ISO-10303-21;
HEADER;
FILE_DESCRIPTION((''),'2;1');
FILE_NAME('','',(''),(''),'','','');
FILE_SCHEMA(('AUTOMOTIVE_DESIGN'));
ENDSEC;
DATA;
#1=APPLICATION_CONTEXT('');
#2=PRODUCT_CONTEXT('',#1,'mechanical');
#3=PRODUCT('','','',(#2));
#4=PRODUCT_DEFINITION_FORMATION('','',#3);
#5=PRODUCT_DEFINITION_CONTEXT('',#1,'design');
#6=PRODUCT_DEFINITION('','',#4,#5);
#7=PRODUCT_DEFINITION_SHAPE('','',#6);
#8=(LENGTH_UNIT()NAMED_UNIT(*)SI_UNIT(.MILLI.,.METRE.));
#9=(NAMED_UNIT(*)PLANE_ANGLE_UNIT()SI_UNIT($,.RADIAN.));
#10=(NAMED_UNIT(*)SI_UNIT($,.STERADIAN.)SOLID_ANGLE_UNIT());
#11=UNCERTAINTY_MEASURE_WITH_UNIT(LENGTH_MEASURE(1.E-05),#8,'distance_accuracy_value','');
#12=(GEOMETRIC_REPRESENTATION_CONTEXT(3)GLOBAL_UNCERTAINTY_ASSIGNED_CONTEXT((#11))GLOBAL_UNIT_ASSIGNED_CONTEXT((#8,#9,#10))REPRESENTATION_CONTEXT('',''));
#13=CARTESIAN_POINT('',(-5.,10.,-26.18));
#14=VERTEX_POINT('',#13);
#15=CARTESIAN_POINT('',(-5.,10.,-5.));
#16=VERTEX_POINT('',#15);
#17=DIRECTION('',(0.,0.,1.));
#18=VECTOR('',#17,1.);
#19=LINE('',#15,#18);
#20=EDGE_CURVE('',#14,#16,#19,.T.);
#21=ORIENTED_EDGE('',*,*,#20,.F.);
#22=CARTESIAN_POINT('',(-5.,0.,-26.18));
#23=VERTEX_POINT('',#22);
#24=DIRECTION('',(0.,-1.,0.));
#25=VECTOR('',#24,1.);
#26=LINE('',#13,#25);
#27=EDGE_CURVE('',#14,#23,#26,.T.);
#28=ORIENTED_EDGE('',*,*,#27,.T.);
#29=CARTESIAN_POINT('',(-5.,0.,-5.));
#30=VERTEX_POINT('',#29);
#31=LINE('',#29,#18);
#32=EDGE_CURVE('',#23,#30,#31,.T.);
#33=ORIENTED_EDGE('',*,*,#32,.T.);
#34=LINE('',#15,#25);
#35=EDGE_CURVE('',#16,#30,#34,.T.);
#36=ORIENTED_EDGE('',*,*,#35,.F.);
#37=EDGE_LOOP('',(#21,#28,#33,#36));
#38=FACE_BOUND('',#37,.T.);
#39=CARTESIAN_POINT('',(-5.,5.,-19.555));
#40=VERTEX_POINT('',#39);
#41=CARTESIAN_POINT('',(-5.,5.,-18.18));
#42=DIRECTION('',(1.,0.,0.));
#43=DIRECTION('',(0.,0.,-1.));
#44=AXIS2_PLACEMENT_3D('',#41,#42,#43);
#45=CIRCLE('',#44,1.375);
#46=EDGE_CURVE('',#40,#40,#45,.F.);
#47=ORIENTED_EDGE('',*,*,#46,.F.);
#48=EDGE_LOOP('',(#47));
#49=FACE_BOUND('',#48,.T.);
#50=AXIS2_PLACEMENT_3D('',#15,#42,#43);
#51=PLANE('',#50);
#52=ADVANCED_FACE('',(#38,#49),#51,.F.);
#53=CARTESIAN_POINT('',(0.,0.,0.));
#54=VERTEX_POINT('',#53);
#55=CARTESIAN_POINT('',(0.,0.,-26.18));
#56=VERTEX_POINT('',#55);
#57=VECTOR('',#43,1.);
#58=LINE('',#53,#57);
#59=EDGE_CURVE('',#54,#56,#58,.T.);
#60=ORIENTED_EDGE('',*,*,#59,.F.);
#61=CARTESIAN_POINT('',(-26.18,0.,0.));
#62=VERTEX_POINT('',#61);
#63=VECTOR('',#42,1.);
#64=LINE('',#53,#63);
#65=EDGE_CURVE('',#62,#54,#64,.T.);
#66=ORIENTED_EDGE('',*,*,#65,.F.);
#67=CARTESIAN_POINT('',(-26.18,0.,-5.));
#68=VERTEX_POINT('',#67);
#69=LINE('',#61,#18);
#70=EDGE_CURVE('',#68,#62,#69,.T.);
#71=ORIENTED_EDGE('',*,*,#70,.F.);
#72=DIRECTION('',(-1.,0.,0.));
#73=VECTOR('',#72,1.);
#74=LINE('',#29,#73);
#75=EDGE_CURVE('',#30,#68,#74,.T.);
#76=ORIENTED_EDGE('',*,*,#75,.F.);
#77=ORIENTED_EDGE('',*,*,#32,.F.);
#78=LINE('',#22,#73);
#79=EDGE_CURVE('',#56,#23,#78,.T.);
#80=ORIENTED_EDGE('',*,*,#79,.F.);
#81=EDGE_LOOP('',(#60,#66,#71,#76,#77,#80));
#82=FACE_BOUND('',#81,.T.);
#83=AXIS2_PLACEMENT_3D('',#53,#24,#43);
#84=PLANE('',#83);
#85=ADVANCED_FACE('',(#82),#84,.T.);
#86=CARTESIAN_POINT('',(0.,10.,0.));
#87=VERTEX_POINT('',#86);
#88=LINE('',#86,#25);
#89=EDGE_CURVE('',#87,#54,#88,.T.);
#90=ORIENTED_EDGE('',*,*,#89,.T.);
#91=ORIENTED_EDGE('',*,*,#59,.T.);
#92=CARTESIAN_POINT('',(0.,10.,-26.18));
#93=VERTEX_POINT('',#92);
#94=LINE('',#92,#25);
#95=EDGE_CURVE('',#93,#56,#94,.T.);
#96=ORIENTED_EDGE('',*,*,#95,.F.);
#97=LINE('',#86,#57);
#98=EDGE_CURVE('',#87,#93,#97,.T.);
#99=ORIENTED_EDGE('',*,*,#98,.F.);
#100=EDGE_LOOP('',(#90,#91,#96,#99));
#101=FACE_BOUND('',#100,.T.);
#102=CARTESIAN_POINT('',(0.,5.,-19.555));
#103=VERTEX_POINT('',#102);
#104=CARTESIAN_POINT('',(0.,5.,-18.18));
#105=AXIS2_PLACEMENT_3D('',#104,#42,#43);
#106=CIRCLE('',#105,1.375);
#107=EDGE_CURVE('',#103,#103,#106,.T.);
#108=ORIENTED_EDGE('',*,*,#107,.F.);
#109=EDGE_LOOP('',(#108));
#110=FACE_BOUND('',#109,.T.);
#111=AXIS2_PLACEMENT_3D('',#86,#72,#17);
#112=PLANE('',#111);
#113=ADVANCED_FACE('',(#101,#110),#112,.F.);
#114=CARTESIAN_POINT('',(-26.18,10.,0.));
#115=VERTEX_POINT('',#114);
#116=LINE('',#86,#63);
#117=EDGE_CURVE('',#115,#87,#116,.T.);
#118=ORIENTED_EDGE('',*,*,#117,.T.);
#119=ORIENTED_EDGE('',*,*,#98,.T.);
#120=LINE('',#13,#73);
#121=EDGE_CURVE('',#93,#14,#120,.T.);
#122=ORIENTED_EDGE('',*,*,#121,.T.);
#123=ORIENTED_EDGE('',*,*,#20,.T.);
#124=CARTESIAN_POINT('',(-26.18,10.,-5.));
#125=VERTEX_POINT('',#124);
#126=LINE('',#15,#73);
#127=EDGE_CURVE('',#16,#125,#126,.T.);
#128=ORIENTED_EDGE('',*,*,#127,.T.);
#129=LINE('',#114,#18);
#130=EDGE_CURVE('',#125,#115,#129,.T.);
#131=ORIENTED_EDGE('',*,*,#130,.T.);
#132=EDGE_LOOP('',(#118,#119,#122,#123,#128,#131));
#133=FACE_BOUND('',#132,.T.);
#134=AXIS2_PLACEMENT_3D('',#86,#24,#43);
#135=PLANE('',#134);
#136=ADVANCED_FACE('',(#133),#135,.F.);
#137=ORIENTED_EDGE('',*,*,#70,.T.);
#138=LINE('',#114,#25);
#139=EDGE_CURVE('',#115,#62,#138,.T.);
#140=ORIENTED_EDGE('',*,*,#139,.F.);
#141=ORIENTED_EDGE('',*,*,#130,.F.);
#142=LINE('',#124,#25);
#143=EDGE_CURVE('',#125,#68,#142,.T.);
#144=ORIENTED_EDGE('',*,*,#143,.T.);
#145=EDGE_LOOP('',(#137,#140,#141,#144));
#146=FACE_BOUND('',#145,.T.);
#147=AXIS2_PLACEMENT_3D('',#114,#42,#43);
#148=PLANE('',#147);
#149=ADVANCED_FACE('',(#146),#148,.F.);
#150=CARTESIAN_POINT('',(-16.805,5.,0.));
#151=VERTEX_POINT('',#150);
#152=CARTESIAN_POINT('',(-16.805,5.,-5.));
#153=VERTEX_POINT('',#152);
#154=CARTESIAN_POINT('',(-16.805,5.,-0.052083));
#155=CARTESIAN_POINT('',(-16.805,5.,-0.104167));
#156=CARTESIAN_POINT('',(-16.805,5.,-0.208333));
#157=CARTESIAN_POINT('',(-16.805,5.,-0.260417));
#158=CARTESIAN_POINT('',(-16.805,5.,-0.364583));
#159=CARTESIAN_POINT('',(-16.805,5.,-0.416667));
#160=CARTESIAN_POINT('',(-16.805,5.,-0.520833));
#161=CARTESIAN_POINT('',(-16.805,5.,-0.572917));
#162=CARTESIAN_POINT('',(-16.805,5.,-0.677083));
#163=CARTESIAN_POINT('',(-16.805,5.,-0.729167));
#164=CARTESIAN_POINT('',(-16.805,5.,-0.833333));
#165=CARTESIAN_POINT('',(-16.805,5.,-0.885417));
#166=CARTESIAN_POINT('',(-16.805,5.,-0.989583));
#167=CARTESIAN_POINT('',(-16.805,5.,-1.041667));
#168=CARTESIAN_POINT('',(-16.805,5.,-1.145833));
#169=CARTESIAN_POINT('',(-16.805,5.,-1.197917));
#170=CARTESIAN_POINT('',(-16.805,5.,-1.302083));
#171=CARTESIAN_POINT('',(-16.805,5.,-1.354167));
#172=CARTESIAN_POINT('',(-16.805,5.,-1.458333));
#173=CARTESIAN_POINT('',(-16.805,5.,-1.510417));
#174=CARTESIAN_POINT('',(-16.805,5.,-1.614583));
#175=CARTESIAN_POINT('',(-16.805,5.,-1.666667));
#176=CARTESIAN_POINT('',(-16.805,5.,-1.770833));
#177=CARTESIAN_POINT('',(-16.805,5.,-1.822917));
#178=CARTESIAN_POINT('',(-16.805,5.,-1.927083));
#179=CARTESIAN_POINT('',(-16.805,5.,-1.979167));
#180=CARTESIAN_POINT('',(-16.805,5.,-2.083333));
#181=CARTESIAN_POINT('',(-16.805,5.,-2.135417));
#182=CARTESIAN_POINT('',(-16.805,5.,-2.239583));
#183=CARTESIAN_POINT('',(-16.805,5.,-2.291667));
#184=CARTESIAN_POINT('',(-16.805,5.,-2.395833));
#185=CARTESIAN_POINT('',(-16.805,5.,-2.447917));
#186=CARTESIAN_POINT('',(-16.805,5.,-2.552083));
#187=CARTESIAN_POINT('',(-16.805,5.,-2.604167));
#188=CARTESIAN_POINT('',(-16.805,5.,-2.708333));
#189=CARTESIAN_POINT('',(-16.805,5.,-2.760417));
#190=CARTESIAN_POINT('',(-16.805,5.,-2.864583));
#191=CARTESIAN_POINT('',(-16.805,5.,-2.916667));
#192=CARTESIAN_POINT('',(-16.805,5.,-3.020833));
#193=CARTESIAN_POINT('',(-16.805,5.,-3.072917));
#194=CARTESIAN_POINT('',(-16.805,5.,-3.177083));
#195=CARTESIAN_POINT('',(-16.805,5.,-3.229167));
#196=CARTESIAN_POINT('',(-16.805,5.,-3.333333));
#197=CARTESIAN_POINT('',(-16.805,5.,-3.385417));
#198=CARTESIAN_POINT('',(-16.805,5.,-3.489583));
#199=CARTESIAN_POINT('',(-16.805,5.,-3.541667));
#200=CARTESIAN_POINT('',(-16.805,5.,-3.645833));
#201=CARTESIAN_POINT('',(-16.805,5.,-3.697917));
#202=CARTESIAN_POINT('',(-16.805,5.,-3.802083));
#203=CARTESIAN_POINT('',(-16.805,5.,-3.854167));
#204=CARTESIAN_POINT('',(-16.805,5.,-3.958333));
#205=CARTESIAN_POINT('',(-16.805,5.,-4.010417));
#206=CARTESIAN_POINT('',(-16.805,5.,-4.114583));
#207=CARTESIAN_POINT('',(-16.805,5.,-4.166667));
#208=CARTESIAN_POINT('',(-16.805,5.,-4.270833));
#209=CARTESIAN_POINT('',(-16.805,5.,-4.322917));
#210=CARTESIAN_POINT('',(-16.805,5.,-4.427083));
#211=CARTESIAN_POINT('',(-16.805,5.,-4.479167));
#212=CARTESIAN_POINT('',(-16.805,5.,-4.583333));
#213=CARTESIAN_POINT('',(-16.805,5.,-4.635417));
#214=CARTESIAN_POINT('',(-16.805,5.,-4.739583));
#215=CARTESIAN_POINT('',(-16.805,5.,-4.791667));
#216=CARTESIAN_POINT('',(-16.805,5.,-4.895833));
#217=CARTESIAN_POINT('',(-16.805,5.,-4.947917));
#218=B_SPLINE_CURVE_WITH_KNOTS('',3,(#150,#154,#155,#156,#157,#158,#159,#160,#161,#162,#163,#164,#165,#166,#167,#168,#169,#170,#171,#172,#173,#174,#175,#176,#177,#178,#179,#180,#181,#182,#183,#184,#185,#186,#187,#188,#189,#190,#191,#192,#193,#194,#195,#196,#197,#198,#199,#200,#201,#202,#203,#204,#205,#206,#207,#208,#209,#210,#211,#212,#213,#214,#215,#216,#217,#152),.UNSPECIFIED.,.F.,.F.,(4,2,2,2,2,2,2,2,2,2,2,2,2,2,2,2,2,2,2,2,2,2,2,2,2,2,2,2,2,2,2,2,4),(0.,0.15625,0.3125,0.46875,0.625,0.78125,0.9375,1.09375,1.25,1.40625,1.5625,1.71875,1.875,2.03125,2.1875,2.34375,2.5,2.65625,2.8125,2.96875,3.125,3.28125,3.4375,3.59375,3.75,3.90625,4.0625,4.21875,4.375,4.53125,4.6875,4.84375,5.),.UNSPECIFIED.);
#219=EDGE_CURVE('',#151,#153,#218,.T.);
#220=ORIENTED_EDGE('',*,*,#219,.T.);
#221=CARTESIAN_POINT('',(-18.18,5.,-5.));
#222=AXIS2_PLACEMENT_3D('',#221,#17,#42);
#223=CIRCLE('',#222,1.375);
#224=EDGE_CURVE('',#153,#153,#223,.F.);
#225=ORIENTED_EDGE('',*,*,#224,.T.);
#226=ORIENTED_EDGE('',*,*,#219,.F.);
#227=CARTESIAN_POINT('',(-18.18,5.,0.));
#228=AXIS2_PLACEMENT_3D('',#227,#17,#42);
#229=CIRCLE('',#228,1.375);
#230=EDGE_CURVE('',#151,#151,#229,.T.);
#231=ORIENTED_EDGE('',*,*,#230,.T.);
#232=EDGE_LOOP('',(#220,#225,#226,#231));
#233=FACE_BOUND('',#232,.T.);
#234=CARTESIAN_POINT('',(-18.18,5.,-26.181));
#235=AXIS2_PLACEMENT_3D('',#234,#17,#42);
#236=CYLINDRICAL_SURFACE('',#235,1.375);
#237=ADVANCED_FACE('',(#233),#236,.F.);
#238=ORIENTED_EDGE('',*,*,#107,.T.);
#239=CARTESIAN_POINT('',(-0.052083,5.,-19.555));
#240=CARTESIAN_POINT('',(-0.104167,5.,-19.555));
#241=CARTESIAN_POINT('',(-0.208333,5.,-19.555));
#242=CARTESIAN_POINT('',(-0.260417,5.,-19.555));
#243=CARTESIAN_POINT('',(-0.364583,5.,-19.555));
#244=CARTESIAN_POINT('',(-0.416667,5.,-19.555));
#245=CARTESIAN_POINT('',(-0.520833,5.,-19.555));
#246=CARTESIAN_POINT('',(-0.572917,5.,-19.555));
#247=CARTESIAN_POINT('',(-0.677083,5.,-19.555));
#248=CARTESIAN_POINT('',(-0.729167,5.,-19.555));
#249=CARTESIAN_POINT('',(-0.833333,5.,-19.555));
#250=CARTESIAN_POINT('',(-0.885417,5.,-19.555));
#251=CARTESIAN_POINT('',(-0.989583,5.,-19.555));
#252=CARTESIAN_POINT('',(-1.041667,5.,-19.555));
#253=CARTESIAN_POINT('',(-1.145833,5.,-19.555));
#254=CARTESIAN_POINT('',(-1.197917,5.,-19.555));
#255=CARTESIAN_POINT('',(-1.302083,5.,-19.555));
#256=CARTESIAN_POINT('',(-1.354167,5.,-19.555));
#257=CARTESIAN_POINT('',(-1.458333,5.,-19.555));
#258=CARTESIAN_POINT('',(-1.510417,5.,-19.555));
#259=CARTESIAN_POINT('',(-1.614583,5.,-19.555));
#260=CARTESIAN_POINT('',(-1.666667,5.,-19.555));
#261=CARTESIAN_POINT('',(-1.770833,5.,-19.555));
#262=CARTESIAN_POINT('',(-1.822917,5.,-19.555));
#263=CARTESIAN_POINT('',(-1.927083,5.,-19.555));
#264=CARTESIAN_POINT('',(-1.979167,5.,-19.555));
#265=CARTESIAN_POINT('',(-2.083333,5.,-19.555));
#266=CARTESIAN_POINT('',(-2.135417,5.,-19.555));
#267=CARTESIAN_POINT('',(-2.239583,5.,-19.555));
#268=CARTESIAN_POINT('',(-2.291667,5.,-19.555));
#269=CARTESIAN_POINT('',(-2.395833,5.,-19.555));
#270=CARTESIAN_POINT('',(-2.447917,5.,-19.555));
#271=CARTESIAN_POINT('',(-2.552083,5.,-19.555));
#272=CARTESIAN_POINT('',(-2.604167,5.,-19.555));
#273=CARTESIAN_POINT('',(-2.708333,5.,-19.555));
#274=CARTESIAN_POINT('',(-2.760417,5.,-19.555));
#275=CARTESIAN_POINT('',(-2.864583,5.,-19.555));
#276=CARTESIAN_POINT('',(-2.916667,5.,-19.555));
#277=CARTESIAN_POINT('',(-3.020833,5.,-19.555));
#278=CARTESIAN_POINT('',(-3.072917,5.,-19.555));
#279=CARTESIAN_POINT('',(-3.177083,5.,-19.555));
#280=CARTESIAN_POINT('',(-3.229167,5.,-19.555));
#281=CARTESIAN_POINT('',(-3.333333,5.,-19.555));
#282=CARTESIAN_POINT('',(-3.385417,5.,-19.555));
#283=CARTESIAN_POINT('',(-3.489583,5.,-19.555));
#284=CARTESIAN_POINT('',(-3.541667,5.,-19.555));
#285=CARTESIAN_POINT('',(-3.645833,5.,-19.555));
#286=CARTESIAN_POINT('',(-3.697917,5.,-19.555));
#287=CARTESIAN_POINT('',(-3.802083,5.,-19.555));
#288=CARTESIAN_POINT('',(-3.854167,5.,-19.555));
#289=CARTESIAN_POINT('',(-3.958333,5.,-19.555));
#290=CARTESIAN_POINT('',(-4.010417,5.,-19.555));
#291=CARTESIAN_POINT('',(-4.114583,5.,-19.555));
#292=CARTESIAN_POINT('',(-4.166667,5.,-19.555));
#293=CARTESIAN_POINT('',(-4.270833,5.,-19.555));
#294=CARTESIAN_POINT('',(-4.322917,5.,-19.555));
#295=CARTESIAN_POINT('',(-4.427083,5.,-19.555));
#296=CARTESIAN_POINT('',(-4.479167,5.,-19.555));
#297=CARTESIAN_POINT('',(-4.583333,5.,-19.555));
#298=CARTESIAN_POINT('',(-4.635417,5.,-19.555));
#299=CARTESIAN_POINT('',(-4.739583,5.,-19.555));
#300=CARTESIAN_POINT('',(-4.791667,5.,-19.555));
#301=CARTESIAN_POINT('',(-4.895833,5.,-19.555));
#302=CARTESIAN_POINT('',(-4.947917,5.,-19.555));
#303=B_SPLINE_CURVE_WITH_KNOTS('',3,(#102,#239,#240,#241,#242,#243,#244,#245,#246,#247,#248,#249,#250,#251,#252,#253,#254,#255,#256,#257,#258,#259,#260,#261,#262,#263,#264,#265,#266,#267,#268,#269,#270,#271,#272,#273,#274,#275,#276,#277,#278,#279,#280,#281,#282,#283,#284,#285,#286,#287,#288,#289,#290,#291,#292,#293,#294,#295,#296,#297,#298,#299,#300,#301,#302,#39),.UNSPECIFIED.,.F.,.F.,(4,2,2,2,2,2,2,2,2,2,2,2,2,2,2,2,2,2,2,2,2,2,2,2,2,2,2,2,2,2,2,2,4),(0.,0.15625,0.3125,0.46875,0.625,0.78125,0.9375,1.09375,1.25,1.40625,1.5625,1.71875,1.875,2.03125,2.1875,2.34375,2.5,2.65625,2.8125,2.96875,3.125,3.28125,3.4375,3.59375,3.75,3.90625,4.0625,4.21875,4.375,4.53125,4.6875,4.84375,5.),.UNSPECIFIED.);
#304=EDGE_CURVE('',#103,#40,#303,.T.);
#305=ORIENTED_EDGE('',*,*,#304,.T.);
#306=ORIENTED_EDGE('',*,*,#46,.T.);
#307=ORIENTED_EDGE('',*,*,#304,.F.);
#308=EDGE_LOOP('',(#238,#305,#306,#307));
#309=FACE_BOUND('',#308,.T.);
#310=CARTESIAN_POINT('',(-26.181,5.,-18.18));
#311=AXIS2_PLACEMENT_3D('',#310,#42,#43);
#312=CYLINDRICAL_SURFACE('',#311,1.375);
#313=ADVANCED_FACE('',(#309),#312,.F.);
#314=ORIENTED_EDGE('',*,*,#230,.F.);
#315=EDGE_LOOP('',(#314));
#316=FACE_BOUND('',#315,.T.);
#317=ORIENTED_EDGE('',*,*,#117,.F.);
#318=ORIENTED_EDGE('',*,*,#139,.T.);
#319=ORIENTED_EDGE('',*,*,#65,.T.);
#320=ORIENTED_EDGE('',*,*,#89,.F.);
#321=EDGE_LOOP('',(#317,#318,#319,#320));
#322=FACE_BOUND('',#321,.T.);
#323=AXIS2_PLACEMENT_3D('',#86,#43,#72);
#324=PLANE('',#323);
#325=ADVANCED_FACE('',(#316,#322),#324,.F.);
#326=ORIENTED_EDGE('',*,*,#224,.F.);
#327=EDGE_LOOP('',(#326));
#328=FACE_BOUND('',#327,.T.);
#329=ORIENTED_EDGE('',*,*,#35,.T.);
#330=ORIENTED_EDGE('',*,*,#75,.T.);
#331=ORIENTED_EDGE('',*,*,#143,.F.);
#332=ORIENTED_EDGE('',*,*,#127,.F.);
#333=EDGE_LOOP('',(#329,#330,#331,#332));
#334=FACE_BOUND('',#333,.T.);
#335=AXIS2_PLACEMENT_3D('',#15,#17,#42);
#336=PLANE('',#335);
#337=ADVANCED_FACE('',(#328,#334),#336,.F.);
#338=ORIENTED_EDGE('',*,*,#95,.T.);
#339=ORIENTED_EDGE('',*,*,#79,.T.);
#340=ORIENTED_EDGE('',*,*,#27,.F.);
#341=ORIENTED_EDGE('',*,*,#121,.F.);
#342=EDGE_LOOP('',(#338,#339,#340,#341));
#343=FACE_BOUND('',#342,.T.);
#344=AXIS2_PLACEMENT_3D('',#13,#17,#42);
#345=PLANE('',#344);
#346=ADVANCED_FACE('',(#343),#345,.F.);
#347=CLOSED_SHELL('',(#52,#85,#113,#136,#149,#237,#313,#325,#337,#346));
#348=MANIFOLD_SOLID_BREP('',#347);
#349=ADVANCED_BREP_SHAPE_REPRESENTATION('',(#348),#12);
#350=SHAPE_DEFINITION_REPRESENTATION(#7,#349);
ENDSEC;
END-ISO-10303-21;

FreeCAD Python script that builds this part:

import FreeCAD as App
import Part
import Sketcher
from FreeCAD import Vector


def add_polygon(sketch, points):
    """Adds a closed chain of lines whose ends are joined by coincident constraints."""
    first, n = sketch.GeometryCount, len(points)
    for a, b in zip(points, points[1:] + points[:1]):
        sketch.addGeometry(Part.LineSegment(App.Vector(*a, 0), App.Vector(*b, 0)), False)
    for i in range(n):
        sketch.addConstraint(Sketcher.Constraint("Coincident", first + i, 2, first + (i + 1) % n, 1))

doc = App.newDocument("Part")
body = doc.addObject("PartDesign::Body", "Body")

# Sketch on XZ plane
sketch1 = body.newObject("Sketcher::SketchObject", "Sketch")
sketch1.AttachmentSupport = (doc.getObject("XZ_Plane"), [""])
sketch1.MapMode = "FlatFace"
add_polygon(sketch1, [(-26, 0), (0, 0), (0, -26), (-5, -26), (-5, -5), (-26, -5)])  # lines 0-5
sketch1.addConstraint([
    Sketcher.Constraint("Horizontal", 0),
    Sketcher.Constraint("Vertical", 1),
    Sketcher.Constraint("Horizontal", 2),
    Sketcher.Constraint("Vertical", 3),
    Sketcher.Constraint("Horizontal", 4),
    Sketcher.Constraint("Vertical", 5),
    Sketcher.Constraint("Coincident", 0, 2, -1, 1),
    Sketcher.Constraint("Equal", 0, 1),
    Sketcher.Constraint("Equal", 4, 3),
    Sketcher.Constraint("DistanceX", 2, 2, 2, 1, 5.0),
    Sketcher.Constraint("DistanceX", 0, 1, 0, 2, 26.18),
])
pad1 = body.newObject("PartDesign::Pad", "Pad")
pad1.Profile = sketch1
pad1.Length = 10
pad1.Reversed = True

# Sketch on XY plane
sketch2 = body.newObject("Sketcher::SketchObject", "Sketch001")
sketch2.AttachmentSupport = (doc.getObject("XY_Plane"), [""])
sketch2.MapMode = "FlatFace"
sketch2.addGeometry(Part.Circle(Vector(-18.2, 5, 0), Vector(0, 0, 1), 1.4), False)
sketch2.addConstraint([
    Sketcher.Constraint("Diameter", 0, 2.75),
    Sketcher.Constraint("DistanceY", -1, 1, 0, 3, 5.0),
    Sketcher.Constraint("DistanceX", 0, 3, -1, 1, 18.18),
])
pocket1 = body.newObject("PartDesign::Pocket", "Pocket")
pocket1.Profile = sketch2
pocket1.Type = "UpToFirst"

# Sketch on YZ plane
sketch3 = body.newObject("Sketcher::SketchObject", "Sketch002")
sketch3.AttachmentSupport = (doc.getObject("YZ_Plane"), [""])
sketch3.MapMode = "FlatFace"
sketch3.addGeometry(Part.Circle(Vector(5, -18.2, 0), Vector(0, 0, 1), 1.4), False)
sketch3.addConstraint([
    Sketcher.Constraint("Diameter", 0, 2.75),
    Sketcher.Constraint("DistanceX", -1, 1, 0, 3, 5.0),
    Sketcher.Constraint("DistanceY", 0, 3, -1, 1, 18.18),
])
pocket2 = body.newObject("PartDesign::Pocket", "Pocket001")
pocket2.Profile = sketch3
pocket2.Type = "UpToFirst"

doc.recompute()
